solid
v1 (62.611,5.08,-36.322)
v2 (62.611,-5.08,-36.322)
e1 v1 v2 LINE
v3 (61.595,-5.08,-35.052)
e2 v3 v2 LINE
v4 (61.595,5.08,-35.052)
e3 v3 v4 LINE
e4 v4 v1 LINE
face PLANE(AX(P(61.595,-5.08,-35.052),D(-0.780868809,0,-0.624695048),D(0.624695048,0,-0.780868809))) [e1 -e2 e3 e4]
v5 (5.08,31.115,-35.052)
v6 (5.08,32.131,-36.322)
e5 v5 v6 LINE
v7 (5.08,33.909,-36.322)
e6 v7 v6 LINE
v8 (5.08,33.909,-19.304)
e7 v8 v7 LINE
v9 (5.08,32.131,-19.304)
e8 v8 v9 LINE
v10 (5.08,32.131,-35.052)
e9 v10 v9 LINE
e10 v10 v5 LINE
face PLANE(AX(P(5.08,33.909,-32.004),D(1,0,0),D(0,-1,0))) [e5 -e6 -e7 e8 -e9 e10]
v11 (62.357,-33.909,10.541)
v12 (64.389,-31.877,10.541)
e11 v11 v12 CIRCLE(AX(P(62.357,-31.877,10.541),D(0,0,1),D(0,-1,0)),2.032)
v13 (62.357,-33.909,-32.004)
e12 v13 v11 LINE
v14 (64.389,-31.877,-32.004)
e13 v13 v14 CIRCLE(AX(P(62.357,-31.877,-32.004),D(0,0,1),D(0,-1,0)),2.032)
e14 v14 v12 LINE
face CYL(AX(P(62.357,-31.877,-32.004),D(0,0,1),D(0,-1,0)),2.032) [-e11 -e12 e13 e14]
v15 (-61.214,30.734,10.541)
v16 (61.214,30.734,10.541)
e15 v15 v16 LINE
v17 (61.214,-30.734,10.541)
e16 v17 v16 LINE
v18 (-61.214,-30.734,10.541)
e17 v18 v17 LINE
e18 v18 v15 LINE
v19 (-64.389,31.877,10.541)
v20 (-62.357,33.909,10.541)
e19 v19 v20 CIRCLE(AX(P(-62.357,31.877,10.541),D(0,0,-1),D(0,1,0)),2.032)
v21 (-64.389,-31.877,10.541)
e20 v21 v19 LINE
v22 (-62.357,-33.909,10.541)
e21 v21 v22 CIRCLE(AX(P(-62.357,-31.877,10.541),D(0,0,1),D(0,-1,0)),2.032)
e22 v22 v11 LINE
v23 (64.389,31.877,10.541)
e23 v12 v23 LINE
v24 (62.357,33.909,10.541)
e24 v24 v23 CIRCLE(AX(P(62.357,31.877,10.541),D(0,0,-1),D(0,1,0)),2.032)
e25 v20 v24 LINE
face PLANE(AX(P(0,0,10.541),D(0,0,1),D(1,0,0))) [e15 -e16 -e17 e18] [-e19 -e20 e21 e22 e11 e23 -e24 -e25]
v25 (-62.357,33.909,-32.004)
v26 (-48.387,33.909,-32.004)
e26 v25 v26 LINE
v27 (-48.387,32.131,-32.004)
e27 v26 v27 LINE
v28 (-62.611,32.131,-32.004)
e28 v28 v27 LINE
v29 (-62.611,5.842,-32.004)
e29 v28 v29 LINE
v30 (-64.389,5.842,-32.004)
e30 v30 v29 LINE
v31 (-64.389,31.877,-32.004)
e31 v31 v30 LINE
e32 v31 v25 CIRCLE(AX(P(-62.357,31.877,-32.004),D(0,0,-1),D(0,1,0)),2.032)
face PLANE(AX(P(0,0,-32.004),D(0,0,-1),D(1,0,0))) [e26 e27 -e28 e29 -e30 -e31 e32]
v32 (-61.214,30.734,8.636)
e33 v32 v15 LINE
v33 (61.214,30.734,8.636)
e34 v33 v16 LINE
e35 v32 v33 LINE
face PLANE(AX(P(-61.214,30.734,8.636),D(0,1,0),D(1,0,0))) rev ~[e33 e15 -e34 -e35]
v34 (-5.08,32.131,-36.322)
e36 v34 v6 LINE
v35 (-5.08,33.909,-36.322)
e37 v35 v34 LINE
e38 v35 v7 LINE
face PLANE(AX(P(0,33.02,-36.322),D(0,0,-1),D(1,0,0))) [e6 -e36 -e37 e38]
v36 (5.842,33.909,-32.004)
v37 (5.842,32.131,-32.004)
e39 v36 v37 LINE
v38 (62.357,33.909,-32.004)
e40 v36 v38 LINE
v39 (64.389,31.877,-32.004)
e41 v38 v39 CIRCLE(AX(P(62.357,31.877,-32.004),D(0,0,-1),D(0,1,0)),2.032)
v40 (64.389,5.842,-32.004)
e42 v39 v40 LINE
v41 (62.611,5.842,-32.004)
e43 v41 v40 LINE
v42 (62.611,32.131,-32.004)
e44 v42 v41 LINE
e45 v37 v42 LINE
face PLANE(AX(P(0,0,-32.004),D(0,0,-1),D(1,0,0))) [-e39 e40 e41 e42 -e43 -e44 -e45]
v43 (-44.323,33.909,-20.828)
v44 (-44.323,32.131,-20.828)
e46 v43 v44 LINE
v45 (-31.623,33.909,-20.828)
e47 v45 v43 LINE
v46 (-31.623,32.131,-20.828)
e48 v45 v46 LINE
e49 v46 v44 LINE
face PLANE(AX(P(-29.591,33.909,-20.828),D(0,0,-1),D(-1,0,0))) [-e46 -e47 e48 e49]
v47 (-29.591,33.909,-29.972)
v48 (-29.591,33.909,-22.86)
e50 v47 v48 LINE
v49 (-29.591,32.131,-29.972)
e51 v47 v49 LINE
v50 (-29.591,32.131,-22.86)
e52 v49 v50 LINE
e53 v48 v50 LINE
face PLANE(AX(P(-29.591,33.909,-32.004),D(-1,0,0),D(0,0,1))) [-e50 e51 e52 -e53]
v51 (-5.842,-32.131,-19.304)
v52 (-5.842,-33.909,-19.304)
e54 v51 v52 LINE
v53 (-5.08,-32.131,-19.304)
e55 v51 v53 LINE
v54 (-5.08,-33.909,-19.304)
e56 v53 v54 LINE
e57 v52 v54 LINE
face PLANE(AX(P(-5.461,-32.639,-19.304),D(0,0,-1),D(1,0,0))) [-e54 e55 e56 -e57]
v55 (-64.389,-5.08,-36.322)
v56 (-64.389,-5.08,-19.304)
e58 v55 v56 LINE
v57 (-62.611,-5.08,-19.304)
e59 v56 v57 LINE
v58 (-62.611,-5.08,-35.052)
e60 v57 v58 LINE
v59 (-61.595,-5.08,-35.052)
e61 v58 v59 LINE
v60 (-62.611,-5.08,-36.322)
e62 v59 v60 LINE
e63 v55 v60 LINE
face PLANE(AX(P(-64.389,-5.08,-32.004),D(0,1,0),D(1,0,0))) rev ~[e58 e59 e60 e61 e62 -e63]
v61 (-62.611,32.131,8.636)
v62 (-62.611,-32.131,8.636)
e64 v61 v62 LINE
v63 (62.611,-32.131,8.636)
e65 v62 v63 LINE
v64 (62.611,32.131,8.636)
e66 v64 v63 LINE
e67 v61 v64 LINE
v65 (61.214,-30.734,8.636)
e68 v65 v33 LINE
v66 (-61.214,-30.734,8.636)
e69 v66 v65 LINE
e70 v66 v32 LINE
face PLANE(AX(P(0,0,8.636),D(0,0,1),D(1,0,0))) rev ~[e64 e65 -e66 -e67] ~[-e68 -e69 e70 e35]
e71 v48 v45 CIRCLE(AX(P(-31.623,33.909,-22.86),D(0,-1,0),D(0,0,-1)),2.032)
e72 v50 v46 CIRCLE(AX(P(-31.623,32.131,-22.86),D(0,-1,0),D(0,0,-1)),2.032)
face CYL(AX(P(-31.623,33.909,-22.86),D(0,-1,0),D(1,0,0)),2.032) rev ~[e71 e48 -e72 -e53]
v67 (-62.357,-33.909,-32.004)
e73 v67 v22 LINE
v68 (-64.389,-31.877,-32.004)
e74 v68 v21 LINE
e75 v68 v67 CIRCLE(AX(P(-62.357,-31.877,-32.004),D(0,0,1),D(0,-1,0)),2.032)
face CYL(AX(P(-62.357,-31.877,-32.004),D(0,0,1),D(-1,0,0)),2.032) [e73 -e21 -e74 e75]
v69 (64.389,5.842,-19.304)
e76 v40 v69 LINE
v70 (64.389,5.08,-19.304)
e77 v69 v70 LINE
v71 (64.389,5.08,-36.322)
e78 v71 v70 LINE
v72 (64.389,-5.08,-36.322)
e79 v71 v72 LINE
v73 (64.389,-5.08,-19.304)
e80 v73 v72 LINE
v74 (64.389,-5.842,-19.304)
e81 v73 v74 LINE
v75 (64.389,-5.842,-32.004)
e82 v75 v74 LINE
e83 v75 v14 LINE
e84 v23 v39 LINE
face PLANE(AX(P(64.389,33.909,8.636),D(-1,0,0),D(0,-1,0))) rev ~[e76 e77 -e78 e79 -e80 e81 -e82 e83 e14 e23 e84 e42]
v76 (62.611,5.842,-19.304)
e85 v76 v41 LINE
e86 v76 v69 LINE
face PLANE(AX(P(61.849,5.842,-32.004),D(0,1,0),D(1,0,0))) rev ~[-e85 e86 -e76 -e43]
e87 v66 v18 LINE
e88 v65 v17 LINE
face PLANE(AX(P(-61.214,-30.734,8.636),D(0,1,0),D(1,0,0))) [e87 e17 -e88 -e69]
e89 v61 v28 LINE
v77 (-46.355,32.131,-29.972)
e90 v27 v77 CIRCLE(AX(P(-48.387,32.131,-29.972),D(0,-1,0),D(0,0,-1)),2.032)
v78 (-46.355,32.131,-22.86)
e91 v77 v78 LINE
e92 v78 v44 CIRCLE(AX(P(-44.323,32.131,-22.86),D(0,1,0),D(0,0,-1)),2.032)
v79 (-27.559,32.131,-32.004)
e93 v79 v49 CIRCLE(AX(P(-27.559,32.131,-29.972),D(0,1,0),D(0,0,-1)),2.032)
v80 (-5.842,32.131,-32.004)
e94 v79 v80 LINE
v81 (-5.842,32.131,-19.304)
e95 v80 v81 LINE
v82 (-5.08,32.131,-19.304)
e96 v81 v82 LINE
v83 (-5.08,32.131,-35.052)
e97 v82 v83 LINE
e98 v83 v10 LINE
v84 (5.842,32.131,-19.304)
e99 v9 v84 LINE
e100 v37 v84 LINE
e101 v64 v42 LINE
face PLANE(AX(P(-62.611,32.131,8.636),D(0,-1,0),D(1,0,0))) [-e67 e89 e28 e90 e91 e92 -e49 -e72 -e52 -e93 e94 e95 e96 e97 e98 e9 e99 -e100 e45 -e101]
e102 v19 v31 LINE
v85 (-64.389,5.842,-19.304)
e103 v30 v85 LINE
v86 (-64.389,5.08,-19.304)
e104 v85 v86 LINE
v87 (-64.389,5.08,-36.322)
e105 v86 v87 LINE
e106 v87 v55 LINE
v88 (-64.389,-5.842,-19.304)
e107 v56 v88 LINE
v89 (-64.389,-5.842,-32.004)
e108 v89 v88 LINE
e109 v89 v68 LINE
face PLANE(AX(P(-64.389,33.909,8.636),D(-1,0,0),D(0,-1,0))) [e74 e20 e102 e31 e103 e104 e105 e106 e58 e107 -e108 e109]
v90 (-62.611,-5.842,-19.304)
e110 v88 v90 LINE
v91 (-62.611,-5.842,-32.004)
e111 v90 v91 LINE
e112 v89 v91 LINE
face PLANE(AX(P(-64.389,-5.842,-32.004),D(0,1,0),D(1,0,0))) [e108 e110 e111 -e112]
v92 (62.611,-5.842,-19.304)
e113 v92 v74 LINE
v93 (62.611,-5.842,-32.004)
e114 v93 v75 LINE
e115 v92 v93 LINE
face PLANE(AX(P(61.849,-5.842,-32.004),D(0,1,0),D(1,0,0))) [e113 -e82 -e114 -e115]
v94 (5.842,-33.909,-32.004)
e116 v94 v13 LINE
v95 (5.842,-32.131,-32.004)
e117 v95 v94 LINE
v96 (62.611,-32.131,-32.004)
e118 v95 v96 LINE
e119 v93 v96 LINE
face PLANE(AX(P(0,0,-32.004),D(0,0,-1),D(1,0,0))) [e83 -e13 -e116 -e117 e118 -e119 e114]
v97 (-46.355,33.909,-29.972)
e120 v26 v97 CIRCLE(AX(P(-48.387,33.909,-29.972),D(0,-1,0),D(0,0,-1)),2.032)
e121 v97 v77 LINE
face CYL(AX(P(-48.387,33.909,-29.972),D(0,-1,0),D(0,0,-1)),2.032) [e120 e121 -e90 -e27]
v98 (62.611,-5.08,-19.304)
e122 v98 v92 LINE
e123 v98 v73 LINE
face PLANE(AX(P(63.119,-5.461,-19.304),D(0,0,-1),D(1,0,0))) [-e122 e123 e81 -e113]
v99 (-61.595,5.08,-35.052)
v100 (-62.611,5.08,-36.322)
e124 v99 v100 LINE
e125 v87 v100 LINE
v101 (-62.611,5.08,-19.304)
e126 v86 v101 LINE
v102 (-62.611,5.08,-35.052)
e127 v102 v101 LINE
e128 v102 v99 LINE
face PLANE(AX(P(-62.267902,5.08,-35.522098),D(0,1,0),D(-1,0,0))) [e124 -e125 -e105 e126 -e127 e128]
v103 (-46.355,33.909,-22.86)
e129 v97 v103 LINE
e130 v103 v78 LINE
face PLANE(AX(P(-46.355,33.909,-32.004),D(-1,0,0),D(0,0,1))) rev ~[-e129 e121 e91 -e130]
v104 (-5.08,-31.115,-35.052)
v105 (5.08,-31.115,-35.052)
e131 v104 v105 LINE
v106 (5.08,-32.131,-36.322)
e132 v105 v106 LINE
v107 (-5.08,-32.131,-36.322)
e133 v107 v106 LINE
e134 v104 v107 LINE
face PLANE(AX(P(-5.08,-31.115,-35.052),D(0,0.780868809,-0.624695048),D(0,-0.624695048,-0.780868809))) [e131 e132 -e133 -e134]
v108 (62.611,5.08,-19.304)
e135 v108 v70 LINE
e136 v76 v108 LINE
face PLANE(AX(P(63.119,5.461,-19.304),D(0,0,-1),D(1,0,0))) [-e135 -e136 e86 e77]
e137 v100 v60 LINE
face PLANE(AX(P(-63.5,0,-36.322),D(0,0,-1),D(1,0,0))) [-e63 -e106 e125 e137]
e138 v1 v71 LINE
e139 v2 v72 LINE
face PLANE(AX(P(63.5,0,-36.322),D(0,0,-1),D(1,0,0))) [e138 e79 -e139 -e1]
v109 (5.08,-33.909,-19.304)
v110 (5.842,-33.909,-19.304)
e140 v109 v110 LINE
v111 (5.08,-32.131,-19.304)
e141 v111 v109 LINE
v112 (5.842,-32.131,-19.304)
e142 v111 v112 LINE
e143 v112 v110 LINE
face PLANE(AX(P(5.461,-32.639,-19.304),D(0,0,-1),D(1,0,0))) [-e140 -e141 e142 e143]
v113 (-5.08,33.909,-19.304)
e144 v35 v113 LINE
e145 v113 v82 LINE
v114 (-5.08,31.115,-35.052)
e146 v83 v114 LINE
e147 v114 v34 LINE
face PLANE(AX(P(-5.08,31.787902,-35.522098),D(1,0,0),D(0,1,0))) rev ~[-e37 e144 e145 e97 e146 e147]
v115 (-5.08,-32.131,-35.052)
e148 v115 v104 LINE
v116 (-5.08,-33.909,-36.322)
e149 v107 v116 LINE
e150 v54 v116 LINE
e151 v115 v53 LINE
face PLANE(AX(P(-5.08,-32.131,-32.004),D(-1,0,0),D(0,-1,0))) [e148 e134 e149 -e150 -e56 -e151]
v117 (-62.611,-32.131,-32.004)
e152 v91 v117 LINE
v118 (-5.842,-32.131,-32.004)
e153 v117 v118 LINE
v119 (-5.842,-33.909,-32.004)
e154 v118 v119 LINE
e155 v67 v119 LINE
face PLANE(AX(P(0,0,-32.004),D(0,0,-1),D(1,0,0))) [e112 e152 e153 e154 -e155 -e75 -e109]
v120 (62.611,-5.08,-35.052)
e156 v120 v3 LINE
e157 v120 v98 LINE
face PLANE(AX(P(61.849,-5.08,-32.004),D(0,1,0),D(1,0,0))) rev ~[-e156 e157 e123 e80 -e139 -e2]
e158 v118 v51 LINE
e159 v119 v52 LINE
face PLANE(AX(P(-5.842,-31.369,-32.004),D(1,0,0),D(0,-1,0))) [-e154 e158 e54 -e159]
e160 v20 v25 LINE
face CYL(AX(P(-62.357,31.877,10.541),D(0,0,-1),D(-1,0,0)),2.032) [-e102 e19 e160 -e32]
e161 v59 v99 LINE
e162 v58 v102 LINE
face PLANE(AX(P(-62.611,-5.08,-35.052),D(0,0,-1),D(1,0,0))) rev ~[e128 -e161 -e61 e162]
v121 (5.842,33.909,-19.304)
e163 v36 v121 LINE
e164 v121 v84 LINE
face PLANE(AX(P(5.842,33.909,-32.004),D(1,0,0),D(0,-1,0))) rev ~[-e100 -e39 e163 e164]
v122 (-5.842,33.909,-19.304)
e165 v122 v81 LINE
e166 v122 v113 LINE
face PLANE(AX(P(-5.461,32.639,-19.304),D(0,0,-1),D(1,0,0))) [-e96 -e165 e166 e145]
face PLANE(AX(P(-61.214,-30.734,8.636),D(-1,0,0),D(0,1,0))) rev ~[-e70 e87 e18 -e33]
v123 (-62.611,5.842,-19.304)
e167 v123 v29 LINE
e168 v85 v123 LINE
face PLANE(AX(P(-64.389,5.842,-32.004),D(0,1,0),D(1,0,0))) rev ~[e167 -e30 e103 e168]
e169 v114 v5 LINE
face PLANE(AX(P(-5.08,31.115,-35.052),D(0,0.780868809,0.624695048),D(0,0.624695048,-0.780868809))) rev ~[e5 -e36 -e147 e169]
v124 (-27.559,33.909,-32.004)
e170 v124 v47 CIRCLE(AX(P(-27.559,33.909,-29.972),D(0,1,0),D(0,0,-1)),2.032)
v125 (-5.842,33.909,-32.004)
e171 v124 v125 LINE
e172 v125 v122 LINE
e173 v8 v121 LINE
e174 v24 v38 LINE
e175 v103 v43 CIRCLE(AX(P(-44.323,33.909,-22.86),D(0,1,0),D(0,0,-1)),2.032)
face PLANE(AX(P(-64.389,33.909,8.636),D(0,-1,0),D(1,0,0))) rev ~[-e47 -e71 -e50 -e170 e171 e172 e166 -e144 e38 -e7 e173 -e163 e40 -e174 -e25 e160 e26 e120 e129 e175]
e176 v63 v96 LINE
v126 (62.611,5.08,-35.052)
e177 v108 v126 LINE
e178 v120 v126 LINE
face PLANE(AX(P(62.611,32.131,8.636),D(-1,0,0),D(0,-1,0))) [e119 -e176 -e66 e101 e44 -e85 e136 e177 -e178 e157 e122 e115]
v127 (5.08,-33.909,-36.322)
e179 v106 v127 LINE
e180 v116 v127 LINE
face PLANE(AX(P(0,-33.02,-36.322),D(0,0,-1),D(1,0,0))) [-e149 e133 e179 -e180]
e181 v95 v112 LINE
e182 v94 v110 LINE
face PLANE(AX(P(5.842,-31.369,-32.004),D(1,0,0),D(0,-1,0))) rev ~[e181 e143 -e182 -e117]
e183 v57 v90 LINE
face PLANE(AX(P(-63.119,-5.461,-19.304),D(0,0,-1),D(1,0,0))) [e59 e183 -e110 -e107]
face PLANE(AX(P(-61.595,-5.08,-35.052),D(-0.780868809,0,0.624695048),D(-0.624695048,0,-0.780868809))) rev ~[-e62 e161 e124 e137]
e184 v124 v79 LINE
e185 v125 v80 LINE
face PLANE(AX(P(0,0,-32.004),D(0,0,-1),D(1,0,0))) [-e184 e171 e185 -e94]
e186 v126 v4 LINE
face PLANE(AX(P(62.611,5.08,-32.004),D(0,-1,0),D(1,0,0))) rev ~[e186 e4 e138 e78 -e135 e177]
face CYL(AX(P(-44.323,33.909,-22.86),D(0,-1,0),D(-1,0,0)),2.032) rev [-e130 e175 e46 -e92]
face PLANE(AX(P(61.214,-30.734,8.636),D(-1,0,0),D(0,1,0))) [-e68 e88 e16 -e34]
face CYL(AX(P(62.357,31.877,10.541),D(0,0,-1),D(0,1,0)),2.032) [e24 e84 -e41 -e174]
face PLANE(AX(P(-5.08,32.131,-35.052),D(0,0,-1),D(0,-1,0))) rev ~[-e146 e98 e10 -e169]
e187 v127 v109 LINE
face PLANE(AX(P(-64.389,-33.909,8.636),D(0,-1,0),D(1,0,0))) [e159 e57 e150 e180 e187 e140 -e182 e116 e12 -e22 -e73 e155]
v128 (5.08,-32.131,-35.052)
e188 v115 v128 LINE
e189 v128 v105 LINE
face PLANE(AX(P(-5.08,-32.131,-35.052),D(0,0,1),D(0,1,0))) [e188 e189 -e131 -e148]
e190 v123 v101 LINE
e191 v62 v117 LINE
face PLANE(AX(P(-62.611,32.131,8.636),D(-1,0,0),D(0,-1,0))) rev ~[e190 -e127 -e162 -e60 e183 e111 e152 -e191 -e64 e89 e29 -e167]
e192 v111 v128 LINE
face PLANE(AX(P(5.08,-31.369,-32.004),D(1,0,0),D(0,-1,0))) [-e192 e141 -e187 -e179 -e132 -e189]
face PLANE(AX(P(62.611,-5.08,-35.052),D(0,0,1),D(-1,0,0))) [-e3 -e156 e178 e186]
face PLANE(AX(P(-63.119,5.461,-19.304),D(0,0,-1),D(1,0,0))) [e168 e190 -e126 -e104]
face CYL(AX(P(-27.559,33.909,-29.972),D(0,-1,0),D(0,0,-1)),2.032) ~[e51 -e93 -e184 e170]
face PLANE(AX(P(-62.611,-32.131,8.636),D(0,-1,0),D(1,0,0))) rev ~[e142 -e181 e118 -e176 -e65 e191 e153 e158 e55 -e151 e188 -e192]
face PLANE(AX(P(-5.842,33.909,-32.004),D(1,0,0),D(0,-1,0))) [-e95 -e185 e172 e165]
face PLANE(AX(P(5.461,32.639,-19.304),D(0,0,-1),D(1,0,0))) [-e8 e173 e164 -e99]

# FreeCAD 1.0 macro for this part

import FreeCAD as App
import Part
import Sketcher
from FreeCAD import Vector
Q = App.Units.Quantity


def edges_at(feature, points):
    """Names of the edges that pass closest to the given points."""
    edges = feature.Shape.Edges
    near = lambda p: min(range(len(edges)), key=lambda i: edges[i].distToShape(Part.Vertex(*p))[0])
    return sorted({f"Edge{near(p) + 1}" for p in points})

doc = App.newDocument("Part")
params = doc.addObject("Spreadsheet::Sheet", "Params")
for row, (alias, value) in enumerate([
    ("sketch1_width", "5.07 in"),
    ("sketch1_width2", "4.82 in"),
    ("sketch1_height", "2.67 in"),
    ("sketch1_height2", "2.42 in"),
    ("pad1_length", "0.075 in"),
    ("sketch2_width", "5.07 in"),
    ("sketch2_height", "2.67 in"),
    ("sketch2_height2", "2.53 in"),
    ("pad2_length", "1.6 in"),
    ("sketch3_width", "0.4 in"),
    ("sketch3_width2", "0.07 in"),
    ("pad3_length", "0.17 in"),
    ("sketch4_width", "0.04 in"),
    ("sketch4_height", "0.05 in"),
    ("pad4_length", "0.4 in"),
    ("sketch5_width", "0.04 in"),
    ("sketch5_height", "0.05 in"),
    ("pad5_length", "0.4 in"),
    ("fillet_radius", "0.08 in"),
    ("sketch6_width", "0.1 in"),
    ("sketch6_width2", "0.03 in"),
    ("pocket1_length", "0.5 in"),
    ("sketch7_width", "0.66 in"),
    ("sketch7_height", "0.44 in"),
    ("pocket2_length", "0.07 in"),
    ("fillet2_radius", "0.08 in"),
], start=1):
    params.set(f"A{row}", alias)
    params.set(f"B{row}", "=" + value)
    params.setAlias(f"B{row}", alias)

body = doc.addObject("PartDesign::Body", "Body")

# Sketch on XY plane
sketch1 = body.newObject("Sketcher::SketchObject", "Sketch")
sketch1.AttachmentSupport = (doc.getObject("XY_Plane"), [""])
sketch1.MapMode = "FlatFace"
sketch1.AttachmentOffset = App.Placement(Vector(0, 0, 0.34 * 25.4), App.Rotation())
sketch1.addGeometry([
    Part.LineSegment(Vector(-64, 34, 0), Vector(-64, -34, 0)),  # 0
    Part.LineSegment(Vector(-64, -34, 0), Vector(64, -34, 0)),  # 1
    Part.LineSegment(Vector(64, -34, 0), Vector(64, 34, 0)),  # 2
    Part.LineSegment(Vector(64, 34, 0), Vector(-64, 34, 0)),  # 3
    Part.LineSegment(Vector(61, -31, 0), Vector(-61, -31, 0)),  # 4
    Part.LineSegment(Vector(-61, -31, 0), Vector(-61, 31, 0)),  # 5
    Part.LineSegment(Vector(-61, 31, 0), Vector(61, 31, 0)),  # 6
    Part.LineSegment(Vector(61, 31, 0), Vector(61, -31, 0)),  # 7
], False)
sketch1.addConstraint([
    Sketcher.Constraint("Coincident", 0, 2, 1, 1),
    Sketcher.Constraint("Coincident", 1, 2, 2, 1),
    Sketcher.Constraint("Coincident", 2, 2, 3, 1),
    Sketcher.Constraint("Coincident", 3, 2, 0, 1),
    Sketcher.Constraint("Coincident", 4, 2, 5, 1),
    Sketcher.Constraint("Coincident", 5, 2, 6, 1),
    Sketcher.Constraint("Coincident", 6, 2, 7, 1),
    Sketcher.Constraint("Coincident", 7, 2, 4, 1),
    Sketcher.Constraint("Vertical", 0),
    Sketcher.Constraint("Horizontal", 1),
    Sketcher.Constraint("Vertical", 2),
    Sketcher.Constraint("Horizontal", 3),
    Sketcher.Constraint("Horizontal", 4),
    Sketcher.Constraint("Vertical", 5),
    Sketcher.Constraint("Horizontal", 6),
    Sketcher.Constraint("Vertical", 7),
    Sketcher.Constraint("Symmetric", 0, 2, 2, 2, -1, 1),
    Sketcher.Constraint("Symmetric", 4, 2, 6, 2, -1, 1),
    Sketcher.Constraint("DistanceX", 1, 1, 1, 2, Q("5.07 in")),
    Sketcher.Constraint("DistanceX", 4, 2, 4, 1, Q("4.82 in")),
    Sketcher.Constraint("DistanceY", 0, 2, 0, 1, Q("2.67 in")),
    Sketcher.Constraint("DistanceY", 5, 1, 5, 2, Q("2.42 in")),
])
sketch1.setExpression("Constraints[18]", "Params.sketch1_width")
sketch1.setExpression("Constraints[19]", "Params.sketch1_width2")
sketch1.setExpression("Constraints[20]", "Params.sketch1_height")
sketch1.setExpression("Constraints[21]", "Params.sketch1_height2")
pad1 = body.newObject("PartDesign::Pad", "Pad")
pad1.Profile = sketch1
pad1.setExpression("Length", "Params.pad1_length")

# Sketch on XY plane
sketch2 = body.newObject("Sketcher::SketchObject", "Sketch001")
sketch2.AttachmentSupport = (doc.getObject("XY_Plane"), [""])
sketch2.MapMode = "FlatFace"
sketch2.AttachmentOffset = App.Placement(Vector(0, 0, 0.34 * 25.4), App.Rotation())
sketch2.addGeometry([
    Part.LineSegment(Vector(-64, -34, 0), Vector(-64, 34, 0)),  # 0
    Part.LineSegment(Vector(-64, 34, 0), Vector(64, 34, 0)),  # 1
    Part.LineSegment(Vector(64, 34, 0), Vector(64, -34, 0)),  # 2
    Part.LineSegment(Vector(64, -34, 0), Vector(-64, -34, 0)),  # 3
    Part.LineSegment(Vector(63, 32, 0), Vector(-63, 32, 0)),  # 4
    Part.LineSegment(Vector(-63, 32, 0), Vector(-63, -32, 0)),  # 5
    Part.LineSegment(Vector(-63, -32, 0), Vector(63, -32, 0)),  # 6
    Part.LineSegment(Vector(63, -32, 0), Vector(63, 32, 0)),  # 7
], False)
sketch2.addConstraint([
    Sketcher.Constraint("Coincident", 0, 2, 1, 1),
    Sketcher.Constraint("Coincident", 1, 2, 2, 1),
    Sketcher.Constraint("Coincident", 2, 2, 3, 1),
    Sketcher.Constraint("Coincident", 3, 2, 0, 1),
    Sketcher.Constraint("Coincident", 4, 2, 5, 1),
    Sketcher.Constraint("Coincident", 5, 2, 6, 1),
    Sketcher.Constraint("Coincident", 6, 2, 7, 1),
    Sketcher.Constraint("Coincident", 7, 2, 4, 1),
    Sketcher.Constraint("Vertical", 0),
    Sketcher.Constraint("Horizontal", 1),
    Sketcher.Constraint("Vertical", 2),
    Sketcher.Constraint("Horizontal", 3),
    Sketcher.Constraint("Horizontal", 4),
    Sketcher.Constraint("Vertical", 5),
    Sketcher.Constraint("Horizontal", 6),
    Sketcher.Constraint("Vertical", 7),
    Sketcher.Constraint("Symmetric", 0, 2, 2, 2, -1, 1),
    Sketcher.Constraint("Symmetric", 4, 2, 6, 2, -1, 1),
    Sketcher.Constraint("DistanceX", 4, 2, 1, 2, Q("5 in")),
    Sketcher.Constraint("DistanceX", 1, 1, 1, 2, Q("5.07 in")),
    Sketcher.Constraint("DistanceY", 0, 1, 0, 2, Q("2.67 in")),
    Sketcher.Constraint("DistanceY", 5, 2, 5, 1, Q("2.53 in")),
])
sketch2.setExpression("Constraints[19]", "Params.sketch2_width")
sketch2.setExpression("Constraints[20]", "Params.sketch2_height")
sketch2.setExpression("Constraints[21]", "Params.sketch2_height2")
pad2 = body.newObject("PartDesign::Pad", "Pad001")
pad2.Profile = sketch2
pad2.setExpression("Length", "Params.pad2_length")
pad2.Reversed = True

# Sketch on XY plane
sketch3 = body.newObject("Sketcher::SketchObject", "Sketch002")
sketch3.AttachmentSupport = (doc.getObject("XY_Plane"), [""])
sketch3.MapMode = "FlatFace"
sketch3.AttachmentOffset = App.Placement(Vector(0, 0, -1.26 * 25.4), App.Rotation())
sketch3.addGeometry([
    Part.LineSegment(Vector(-5.1, -33.9, 0), Vector(-5.1, -32.1, 0)),  # 0
    Part.LineSegment(Vector(-5.1, -32.1, 0), Vector(5.1, -32.1, 0)),  # 1
    Part.LineSegment(Vector(5.1, -32.1, 0), Vector(5.1, -33.9, 0)),  # 2
    Part.LineSegment(Vector(5.1, -33.9, 0), Vector(-5.1, -33.9, 0)),  # 3
    Part.LineSegment(Vector(-5.1, 32.1, 0), Vector(-5.1, 33.9, 0)),  # 4
    Part.LineSegment(Vector(-5.1, 33.9, 0), Vector(5.1, 33.9, 0)),  # 5
    Part.LineSegment(Vector(5.1, 33.9, 0), Vector(5.1, 32.1, 0)),  # 6
    Part.LineSegment(Vector(5.1, 32.1, 0), Vector(-5.1, 32.1, 0)),  # 7
    Part.LineSegment(Vector(-64.4, -5.1, 0), Vector(-64.4, 5.1, 0)),  # 8
    Part.LineSegment(Vector(-64.4, 5.1, 0), Vector(-62.6, 5.1, 0)),  # 9
    Part.LineSegment(Vector(-62.6, 5.1, 0), Vector(-62.6, -5.1, 0)),  # 10
    Part.LineSegment(Vector(-62.6, -5.1, 0), Vector(-64.4, -5.1, 0)),  # 11
    Part.LineSegment(Vector(62.6, -5.1, 0), Vector(62.6, 5.1, 0)),  # 12
    Part.LineSegment(Vector(62.6, 5.1, 0), Vector(64.4, 5.1, 0)),  # 13
    Part.LineSegment(Vector(64.4, 5.1, 0), Vector(64.4, -5.1, 0)),  # 14
    Part.LineSegment(Vector(64.4, -5.1, 0), Vector(62.6, -5.1, 0)),  # 15
], False)
sketch3.addConstraint([
    Sketcher.Constraint("Coincident", 0, 2, 1, 1),
    Sketcher.Constraint("Coincident", 1, 2, 2, 1),
    Sketcher.Constraint("Coincident", 2, 2, 3, 1),
    Sketcher.Constraint("Coincident", 3, 2, 0, 1),
    Sketcher.Constraint("Coincident", 4, 2, 5, 1),
    Sketcher.Constraint("Coincident", 5, 2, 6, 1),
    Sketcher.Constraint("Coincident", 6, 2, 7, 1),
    Sketcher.Constraint("Coincident", 7, 2, 4, 1),
    Sketcher.Constraint("Coincident", 8, 2, 9, 1),
    Sketcher.Constraint("Coincident", 9, 2, 10, 1),
    Sketcher.Constraint("Coincident", 10, 2, 11, 1),
    Sketcher.Constraint("Coincident", 11, 2, 8, 1),
    Sketcher.Constraint("Coincident", 12, 2, 13, 1),
    Sketcher.Constraint("Coincident", 13, 2, 14, 1),
    Sketcher.Constraint("Coincident", 14, 2, 15, 1),
    Sketcher.Constraint("Coincident", 15, 2, 12, 1),
    Sketcher.Constraint("Vertical", 0),
    Sketcher.Constraint("Horizontal", 1),
    Sketcher.Constraint("Vertical", 2),
    Sketcher.Constraint("Horizontal", 3),
    Sketcher.Constraint("Vertical", 4),
    Sketcher.Constraint("Horizontal", 5),
    Sketcher.Constraint("Vertical", 6),
    Sketcher.Constraint("Horizontal", 7),
    Sketcher.Constraint("Vertical", 8),
    Sketcher.Constraint("Horizontal", 9),
    Sketcher.Constraint("Vertical", 10),
    Sketcher.Constraint("Horizontal", 11),
    Sketcher.Constraint("Vertical", 12),
    Sketcher.Constraint("Horizontal", 13),
    Sketcher.Constraint("Vertical", 14),
    Sketcher.Constraint("Horizontal", 15),
    Sketcher.Constraint("Symmetric", 2, 2, 4, 2, -1, 1),
    Sketcher.Constraint("Symmetric", 0, 2, 6, 2, -1, 1),
    Sketcher.Constraint("Symmetric", 10, 2, 12, 2, -1, 1),
    Sketcher.Constraint("Symmetric", 8, 2, 14, 2, -1, 1),
    Sketcher.Constraint("Horizontal", 9, 2, 12, 2),
    Sketcher.Constraint("Vertical", 3, 2, 4, 2),
    Sketcher.Constraint("Equal", 15, 0),
    Sketcher.Constraint("Equal", 7, 8),
    Sketcher.Constraint("DistanceX", 1, 1, 1, 2, Q("0.4 in")),
    Sketcher.Constraint("DistanceX", 9, 1, 9, 2, Q("0.07 in")),
    Sketcher.Constraint("DistanceY", 0, 2, 4, 2, Q("2.6 in")),
    Sketcher.Constraint("DistanceX", 8, 2, -1, 1, Q("2.535 in")),
])
sketch3.setExpression("Constraints[40]", "Params.sketch3_width")
sketch3.setExpression("Constraints[41]", "Params.sketch3_width2")
pad3 = body.newObject("PartDesign::Pad", "Pad002")
pad3.Profile = sketch3
pad3.setExpression("Length", "Params.pad3_length")
pad3.Reversed = True

# Sketch on YZ plane
sketch4 = body.newObject("Sketcher::SketchObject", "Sketch003")
sketch4.AttachmentSupport = (doc.getObject("YZ_Plane"), [""])
sketch4.MapMode = "FlatFace"
sketch4.AttachmentOffset = App.Placement(Vector(0, 0, -0.2 * 25.4), App.Rotation())
sketch4.addGeometry([
    Part.LineSegment(Vector(32.1, -35.1, 0), Vector(32.1, -36.3, 0)),  # 0
    Part.LineSegment(Vector(32.1, -36.3, 0), Vector(31.1, -35.1, 0)),  # 1
    Part.LineSegment(Vector(31.1, -35.1, 0), Vector(32.1, -35.1, 0)),  # 2
    Part.LineSegment(Vector(-32.1, -36.3, 0), Vector(-32.1, -35.1, 0)),  # 3
    Part.LineSegment(Vector(-32.1, -35.1, 0), Vector(-31.1, -35.1, 0)),  # 4
    Part.LineSegment(Vector(-31.1, -35.1, 0), Vector(-32.1, -36.3, 0)),  # 5
], False)
sketch4.addConstraint([
    Sketcher.Constraint("Coincident", 0, 2, 1, 1),
    Sketcher.Constraint("Coincident", 1, 2, 2, 1),
    Sketcher.Constraint("Coincident", 2, 2, 0, 1),
    Sketcher.Constraint("Coincident", 3, 2, 4, 1),
    Sketcher.Constraint("Coincident", 4, 2, 5, 1),
    Sketcher.Constraint("Coincident", 5, 2, 3, 1),
    Sketcher.Constraint("Vertical", 0),
    Sketcher.Constraint("Horizontal", 2),
    Sketcher.Constraint("Vertical", 3),
    Sketcher.Constraint("Horizontal", 4),
    Sketcher.Constraint("Symmetric", 2, 2, 3, 2, -2),
    Sketcher.Constraint("Horizontal", 0, 2, 5, 2),
    Sketcher.Constraint("Equal", 2, 4),
    Sketcher.Constraint("DistanceX", 2, 1, 2, 2, Q("0.04 in")),
    Sketcher.Constraint("DistanceY", 0, 2, 0, 1, Q("0.05 in")),
    Sketcher.Constraint("DistanceY", 0, 2, -1, 1, Q("1.43 in")),
    Sketcher.Constraint("DistanceX", 3, 2, 1, 2, Q("2.49 in")),
])
sketch4.setExpression("Constraints[13]", "Params.sketch4_width")
sketch4.setExpression("Constraints[14]", "Params.sketch4_height")
pad4 = body.newObject("PartDesign::Pad", "Pad003")
pad4.Profile = sketch4
pad4.setExpression("Length", "Params.pad4_length")

# Sketch on XZ plane
sketch5 = body.newObject("Sketcher::SketchObject", "Sketch004")
sketch5.AttachmentSupport = (doc.getObject("XZ_Plane"), [""])
sketch5.MapMode = "FlatFace"
sketch5.AttachmentOffset = App.Placement(Vector(0, 0, 0.2 * 25.4), App.Rotation())
sketch5.addGeometry([
    Part.LineSegment(Vector(-62.6, -35.1, 0), Vector(-62.6, -36.3, 0)),  # 0
    Part.LineSegment(Vector(-62.6, -36.3, 0), Vector(-61.6, -35.1, 0)),  # 1
    Part.LineSegment(Vector(-61.6, -35.1, 0), Vector(-62.6, -35.1, 0)),  # 2
    Part.LineSegment(Vector(62.6, -36.3, 0), Vector(62.6, -35.1, 0)),  # 3
    Part.LineSegment(Vector(62.6, -35.1, 0), Vector(61.6, -35.1, 0)),  # 4
    Part.LineSegment(Vector(61.6, -35.1, 0), Vector(62.6, -36.3, 0)),  # 5
], False)
sketch5.addConstraint([
    Sketcher.Constraint("Coincident", 0, 2, 1, 1),
    Sketcher.Constraint("Coincident", 1, 2, 2, 1),
    Sketcher.Constraint("Coincident", 2, 2, 0, 1),
    Sketcher.Constraint("Coincident", 3, 2, 4, 1),
    Sketcher.Constraint("Coincident", 4, 2, 5, 1),
    Sketcher.Constraint("Coincident", 5, 2, 3, 1),
    Sketcher.Constraint("Vertical", 0),
    Sketcher.Constraint("Horizontal", 2),
    Sketcher.Constraint("Vertical", 3),
    Sketcher.Constraint("Horizontal", 4),
    Sketcher.Constraint("Symmetric", 2, 2, 3, 2, -2),
    Sketcher.Constraint("Horizontal", 0, 2, 5, 2),
    Sketcher.Constraint("Equal", 2, 4),
    Sketcher.Constraint("DistanceX", 2, 2, 2, 1, Q("0.04 in")),
    Sketcher.Constraint("DistanceY", 0, 2, 0, 1, Q("0.05 in")),
    Sketcher.Constraint("DistanceY", 0, 2, -1, 1, Q("1.43 in")),
    Sketcher.Constraint("DistanceX", 1, 2, 3, 2, Q("4.89 in")),
])
sketch5.setExpression("Constraints[13]", "Params.sketch5_width")
sketch5.setExpression("Constraints[14]", "Params.sketch5_height")
pad5 = body.newObject("PartDesign::Pad", "Pad004")
pad5.Profile = sketch5
pad5.setExpression("Length", "Params.pad5_length")
pad5.Reversed = True
doc.recompute()

fillet = body.newObject("PartDesign::Fillet", "Fillet")
fillet.Base = (pad5, edges_at(pad5, [
    (64.389, -33.909, -10.732),
    (64.389, -33.909, -10.732),
    (64.389, 33.909, -10.732),
    (64.389, 33.909, -10.732),
    (-64.389, 33.909, -10.732),
    (-64.389, 33.909, -10.732),
    (-64.389, -33.909, -10.732),
    (-64.389, -33.909, -10.732),
]))
fillet.setExpression("Radius", "Params.fillet_radius")

# Sketch on XY plane
sketch6 = body.newObject("Sketcher::SketchObject", "Sketch005")
sketch6.AttachmentSupport = (doc.getObject("XY_Plane"), [""])
sketch6.MapMode = "FlatFace"
sketch6.AttachmentOffset = App.Placement(Vector(0, 0, -1.26 * 25.4), App.Rotation())
sketch6.addGeometry([
    Part.LineSegment(Vector(-5.8, -33.9, 0), Vector(-5.8, -31.4, 0)),  # 0
    Part.LineSegment(Vector(-5.8, -31.4, 0), Vector(-5.1, -31.4, 0)),  # 1
    Part.LineSegment(Vector(-5.1, -31.4, 0), Vector(-5.1, -33.9, 0)),  # 2
    Part.LineSegment(Vector(-5.1, -33.9, 0), Vector(-5.8, -33.9, 0)),  # 3
    Part.LineSegment(Vector(5.1, -33.9, 0), Vector(5.1, -31.4, 0)),  # 4
    Part.LineSegment(Vector(5.1, -31.4, 0), Vector(5.8, -31.4, 0)),  # 5
    Part.LineSegment(Vector(5.8, -31.4, 0), Vector(5.8, -33.9, 0)),  # 6
    Part.LineSegment(Vector(5.8, -33.9, 0), Vector(5.1, -33.9, 0)),  # 7
    Part.LineSegment(Vector(-5.8, 31.4, 0), Vector(-5.8, 33.9, 0)),  # 8
    Part.LineSegment(Vector(-5.8, 33.9, 0), Vector(-5.1, 33.9, 0)),  # 9
    Part.LineSegment(Vector(-5.1, 33.9, 0), Vector(-5.1, 31.4, 0)),  # 10
    Part.LineSegment(Vector(-5.1, 31.4, 0), Vector(-5.8, 31.4, 0)),  # 11
    Part.LineSegment(Vector(5.1, 31.4, 0), Vector(5.1, 33.9, 0)),  # 12
    Part.LineSegment(Vector(5.1, 33.9, 0), Vector(5.8, 33.9, 0)),  # 13
    Part.LineSegment(Vector(5.8, 33.9, 0), Vector(5.8, 31.4, 0)),  # 14
    Part.LineSegment(Vector(5.8, 31.4, 0), Vector(5.1, 31.4, 0)),  # 15
    Part.LineSegment(Vector(-64.4, -5.8, 0), Vector(-64.4, -5.1, 0)),  # 16
    Part.LineSegment(Vector(-64.4, -5.1, 0), Vector(-61.8, -5.1, 0)),  # 17
    Part.LineSegment(Vector(-61.8, -5.1, 0), Vector(-61.8, -5.8, 0)),  # 18
    Part.LineSegment(Vector(-61.8, -5.8, 0), Vector(-64.4, -5.8, 0)),  # 19
    Part.LineSegment(Vector(-64.4, 5.1, 0), Vector(-64.4, 5.8, 0)),  # 20
    Part.LineSegment(Vector(-64.4, 5.8, 0), Vector(-61.8, 5.8, 0)),  # 21
    Part.LineSegment(Vector(-61.8, 5.8, 0), Vector(-61.8, 5.1, 0)),  # 22
    Part.LineSegment(Vector(-61.8, 5.1, 0), Vector(-64.4, 5.1, 0)),  # 23
    Part.LineSegment(Vector(61.8, -5.8, 0), Vector(61.8, -5.1, 0)),  # 24
    Part.LineSegment(Vector(61.8, -5.1, 0), Vector(64.4, -5.1, 0)),  # 25
    Part.LineSegment(Vector(64.4, -5.1, 0), Vector(64.4, -5.8, 0)),  # 26
    Part.LineSegment(Vector(64.4, -5.8, 0), Vector(61.8, -5.8, 0)),  # 27
    Part.LineSegment(Vector(61.8, 5.1, 0), Vector(61.8, 5.8, 0)),  # 28
    Part.LineSegment(Vector(61.8, 5.8, 0), Vector(64.4, 5.8, 0)),  # 29
    Part.LineSegment(Vector(64.4, 5.8, 0), Vector(64.4, 5.1, 0)),  # 30
    Part.LineSegment(Vector(64.4, 5.1, 0), Vector(61.8, 5.1, 0)),  # 31
], False)
sketch6.addConstraint([
    Sketcher.Constraint("Coincident", 0, 2, 1, 1),
    Sketcher.Constraint("Coincident", 1, 2, 2, 1),
    Sketcher.Constraint("Coincident", 2, 2, 3, 1),
    Sketcher.Constraint("Coincident", 3, 2, 0, 1),
    Sketcher.Constraint("Coincident", 4, 2, 5, 1),
    Sketcher.Constraint("Coincident", 5, 2, 6, 1),
    Sketcher.Constraint("Coincident", 6, 2, 7, 1),
    Sketcher.Constraint("Coincident", 7, 2, 4, 1),
    Sketcher.Constraint("Coincident", 8, 2, 9, 1),
    Sketcher.Constraint("Coincident", 9, 2, 10, 1),
    Sketcher.Constraint("Coincident", 10, 2, 11, 1),
    Sketcher.Constraint("Coincident", 11, 2, 8, 1),
    Sketcher.Constraint("Coincident", 12, 2, 13, 1),
    Sketcher.Constraint("Coincident", 13, 2, 14, 1),
    Sketcher.Constraint("Coincident", 14, 2, 15, 1),
    Sketcher.Constraint("Coincident", 15, 2, 12, 1),
    Sketcher.Constraint("Coincident", 16, 2, 17, 1),
    Sketcher.Constraint("Coincident", 17, 2, 18, 1),
    Sketcher.Constraint("Coincident", 18, 2, 19, 1),
    Sketcher.Constraint("Coincident", 19, 2, 16, 1),
    Sketcher.Constraint("Coincident", 20, 2, 21, 1),
    Sketcher.Constraint("Coincident", 21, 2, 22, 1),
    Sketcher.Constraint("Coincident", 22, 2, 23, 1),
    Sketcher.Constraint("Coincident", 23, 2, 20, 1),
    Sketcher.Constraint("Coincident", 24, 2, 25, 1),
    Sketcher.Constraint("Coincident", 25, 2, 26, 1),
    Sketcher.Constraint("Coincident", 26, 2, 27, 1),
    Sketcher.Constraint("Coincident", 27, 2, 24, 1),
    Sketcher.Constraint("Coincident", 28, 2, 29, 1),
    Sketcher.Constraint("Coincident", 29, 2, 30, 1),
    Sketcher.Constraint("Coincident", 30, 2, 31, 1),
    Sketcher.Constraint("Coincident", 31, 2, 28, 1),
    Sketcher.Constraint("Vertical", 0),
    Sketcher.Constraint("Horizontal", 1),
    Sketcher.Constraint("Vertical", 2),
    Sketcher.Constraint("Horizontal", 3),
    Sketcher.Constraint("Vertical", 4),
    Sketcher.Constraint("Horizontal", 5),
    Sketcher.Constraint("Vertical", 6),
    Sketcher.Constraint("Horizontal", 7),
    Sketcher.Constraint("Vertical", 8),
    Sketcher.Constraint("Horizontal", 9),
    Sketcher.Constraint("Vertical", 10),
    Sketcher.Constraint("Horizontal", 11),
    Sketcher.Constraint("Vertical", 12),
    Sketcher.Constraint("Horizontal", 13),
    Sketcher.Constraint("Vertical", 14),
    Sketcher.Constraint("Horizontal", 15),
    Sketcher.Constraint("Vertical", 16),
    Sketcher.Constraint("Horizontal", 17),
    Sketcher.Constraint("Vertical", 18),
    Sketcher.Constraint("Horizontal", 19),
    Sketcher.Constraint("Vertical", 20),
    Sketcher.Constraint("Horizontal", 21),
    Sketcher.Constraint("Vertical", 22),
    Sketcher.Constraint("Horizontal", 23),
    Sketcher.Constraint("Vertical", 24),
    Sketcher.Constraint("Horizontal", 25),
    Sketcher.Constraint("Vertical", 26),
    Sketcher.Constraint("Horizontal", 27),
    Sketcher.Constraint("Vertical", 28),
    Sketcher.Constraint("Horizontal", 29),
    Sketcher.Constraint("Vertical", 30),
    Sketcher.Constraint("Horizontal", 31),
    Sketcher.Constraint("Symmetric", 6, 2, 8, 2, -1, 1),
    Sketcher.Constraint("Symmetric", 4, 2, 10, 2, -1, 1),
    Sketcher.Constraint("Symmetric", 2, 2, 12, 2, -1, 1),
    Sketcher.Constraint("Symmetric", 0, 2, 14, 2, -1, 1),
    Sketcher.Constraint("Symmetric", 22, 2, 24, 2, -1, 1),
    Sketcher.Constraint("Symmetric", 20, 2, 26, 2, -1, 1),
    Sketcher.Constraint("Symmetric", 18, 2, 28, 2, -1, 1),
    Sketcher.Constraint("Symmetric", 16, 2, 30, 2, -1, 1),
    Sketcher.Constraint("Symmetric", 1, 2, 4, 2, -2),
    Sketcher.Constraint("Symmetric", 3, 2, 6, 2, -2),
    Sketcher.Constraint("Symmetric", 17, 2, 24, 2, -2),
    Sketcher.Constraint("Symmetric", 19, 2, 26, 2, -2),
    Sketcher.Constraint("Equal", 31, 0),
    Sketcher.Constraint("Equal", 15, 16),
    Sketcher.Constraint("DistanceX", 17, 1, 17, 2, Q("0.1 in")),
    Sketcher.Constraint("DistanceX", 1, 1, 1, 2, Q("0.03 in")),
    Sketcher.Constraint("DistanceX", 1, 2, -1, 1, Q("0.2 in")),
    Sketcher.Constraint("DistanceY", 16, 2, -1, 1, Q("0.2 in")),
    Sketcher.Constraint("DistanceY", 0, 2, 8, 2, Q("2.57 in")),
    Sketcher.Constraint("DistanceX", 16, 2, -1, 1, Q("2.535 in")),
])
sketch6.setExpression("Constraints[78]", "Params.sketch6_width")
sketch6.setExpression("Constraints[79]", "Params.sketch6_width2")
pocket1 = body.newObject("PartDesign::Pocket", "Pocket")
pocket1.Profile = sketch6
pocket1.setExpression("Length", "Params.pocket1_length")
pocket1.Reversed = True

# Sketch on XZ plane
sketch7 = body.newObject("Sketcher::SketchObject", "Sketch006")
sketch7.AttachmentSupport = (doc.getObject("XZ_Plane"), [""])
sketch7.MapMode = "FlatFace"
sketch7.AttachmentOffset = App.Placement(Vector(0, 0, -1.335 * 25.4), App.Rotation())
sketch7.addGeometry([
    Part.LineSegment(Vector(-30, -21, 0), Vector(-30, -32, 0)),
    Part.LineSegment(Vector(-30, -32, 0), Vector(-46, -32, 0)),
    Part.LineSegment(Vector(-46, -32, 0), Vector(-46, -21, 0)),
    Part.LineSegment(Vector(-46, -21, 0), Vector(-30, -21, 0)),
], False)
sketch7.addConstraint([
    Sketcher.Constraint("Coincident", 0, 2, 1, 1),
    Sketcher.Constraint("Coincident", 1, 2, 2, 1),
    Sketcher.Constraint("Coincident", 2, 2, 3, 1),
    Sketcher.Constraint("Coincident", 3, 2, 0, 1),
    Sketcher.Constraint("Vertical", 0),
    Sketcher.Constraint("Horizontal", 1),
    Sketcher.Constraint("Vertical", 2),
    Sketcher.Constraint("Horizontal", 3),
    Sketcher.Constraint("DistanceX", 1, 2, 1, 1, Q("0.66 in")),
    Sketcher.Constraint("DistanceY", 0, 2, 0, 1, Q("0.44 in")),
    Sketcher.Constraint("DistanceY", 0, 2, -1, 1, Q("1.26 in")),
    Sketcher.Constraint("DistanceX", 0, 2, -1, 1, Q("1.165 in")),
])
sketch7.setExpression("Constraints[8]", "Params.sketch7_width")
sketch7.setExpression("Constraints[9]", "Params.sketch7_height")
pocket2 = body.newObject("PartDesign::Pocket", "Pocket001")
pocket2.Profile = sketch7
pocket2.setExpression("Length", "Params.pocket2_length")
pocket2.Reversed = True
doc.recompute()

fillet2 = body.newObject("PartDesign::Fillet", "Fillet001")
fillet2.Base = (pocket2, edges_at(pocket2, [
    (-46.355, 33.02, -32.004),
    (-46.355, 33.02, -20.828),
    (-29.591, 33.02, -20.828),
    (-29.591, 33.02, -32.004),
]))
fillet2.setExpression("Radius", "Params.fillet2_radius")

doc.recompute()
